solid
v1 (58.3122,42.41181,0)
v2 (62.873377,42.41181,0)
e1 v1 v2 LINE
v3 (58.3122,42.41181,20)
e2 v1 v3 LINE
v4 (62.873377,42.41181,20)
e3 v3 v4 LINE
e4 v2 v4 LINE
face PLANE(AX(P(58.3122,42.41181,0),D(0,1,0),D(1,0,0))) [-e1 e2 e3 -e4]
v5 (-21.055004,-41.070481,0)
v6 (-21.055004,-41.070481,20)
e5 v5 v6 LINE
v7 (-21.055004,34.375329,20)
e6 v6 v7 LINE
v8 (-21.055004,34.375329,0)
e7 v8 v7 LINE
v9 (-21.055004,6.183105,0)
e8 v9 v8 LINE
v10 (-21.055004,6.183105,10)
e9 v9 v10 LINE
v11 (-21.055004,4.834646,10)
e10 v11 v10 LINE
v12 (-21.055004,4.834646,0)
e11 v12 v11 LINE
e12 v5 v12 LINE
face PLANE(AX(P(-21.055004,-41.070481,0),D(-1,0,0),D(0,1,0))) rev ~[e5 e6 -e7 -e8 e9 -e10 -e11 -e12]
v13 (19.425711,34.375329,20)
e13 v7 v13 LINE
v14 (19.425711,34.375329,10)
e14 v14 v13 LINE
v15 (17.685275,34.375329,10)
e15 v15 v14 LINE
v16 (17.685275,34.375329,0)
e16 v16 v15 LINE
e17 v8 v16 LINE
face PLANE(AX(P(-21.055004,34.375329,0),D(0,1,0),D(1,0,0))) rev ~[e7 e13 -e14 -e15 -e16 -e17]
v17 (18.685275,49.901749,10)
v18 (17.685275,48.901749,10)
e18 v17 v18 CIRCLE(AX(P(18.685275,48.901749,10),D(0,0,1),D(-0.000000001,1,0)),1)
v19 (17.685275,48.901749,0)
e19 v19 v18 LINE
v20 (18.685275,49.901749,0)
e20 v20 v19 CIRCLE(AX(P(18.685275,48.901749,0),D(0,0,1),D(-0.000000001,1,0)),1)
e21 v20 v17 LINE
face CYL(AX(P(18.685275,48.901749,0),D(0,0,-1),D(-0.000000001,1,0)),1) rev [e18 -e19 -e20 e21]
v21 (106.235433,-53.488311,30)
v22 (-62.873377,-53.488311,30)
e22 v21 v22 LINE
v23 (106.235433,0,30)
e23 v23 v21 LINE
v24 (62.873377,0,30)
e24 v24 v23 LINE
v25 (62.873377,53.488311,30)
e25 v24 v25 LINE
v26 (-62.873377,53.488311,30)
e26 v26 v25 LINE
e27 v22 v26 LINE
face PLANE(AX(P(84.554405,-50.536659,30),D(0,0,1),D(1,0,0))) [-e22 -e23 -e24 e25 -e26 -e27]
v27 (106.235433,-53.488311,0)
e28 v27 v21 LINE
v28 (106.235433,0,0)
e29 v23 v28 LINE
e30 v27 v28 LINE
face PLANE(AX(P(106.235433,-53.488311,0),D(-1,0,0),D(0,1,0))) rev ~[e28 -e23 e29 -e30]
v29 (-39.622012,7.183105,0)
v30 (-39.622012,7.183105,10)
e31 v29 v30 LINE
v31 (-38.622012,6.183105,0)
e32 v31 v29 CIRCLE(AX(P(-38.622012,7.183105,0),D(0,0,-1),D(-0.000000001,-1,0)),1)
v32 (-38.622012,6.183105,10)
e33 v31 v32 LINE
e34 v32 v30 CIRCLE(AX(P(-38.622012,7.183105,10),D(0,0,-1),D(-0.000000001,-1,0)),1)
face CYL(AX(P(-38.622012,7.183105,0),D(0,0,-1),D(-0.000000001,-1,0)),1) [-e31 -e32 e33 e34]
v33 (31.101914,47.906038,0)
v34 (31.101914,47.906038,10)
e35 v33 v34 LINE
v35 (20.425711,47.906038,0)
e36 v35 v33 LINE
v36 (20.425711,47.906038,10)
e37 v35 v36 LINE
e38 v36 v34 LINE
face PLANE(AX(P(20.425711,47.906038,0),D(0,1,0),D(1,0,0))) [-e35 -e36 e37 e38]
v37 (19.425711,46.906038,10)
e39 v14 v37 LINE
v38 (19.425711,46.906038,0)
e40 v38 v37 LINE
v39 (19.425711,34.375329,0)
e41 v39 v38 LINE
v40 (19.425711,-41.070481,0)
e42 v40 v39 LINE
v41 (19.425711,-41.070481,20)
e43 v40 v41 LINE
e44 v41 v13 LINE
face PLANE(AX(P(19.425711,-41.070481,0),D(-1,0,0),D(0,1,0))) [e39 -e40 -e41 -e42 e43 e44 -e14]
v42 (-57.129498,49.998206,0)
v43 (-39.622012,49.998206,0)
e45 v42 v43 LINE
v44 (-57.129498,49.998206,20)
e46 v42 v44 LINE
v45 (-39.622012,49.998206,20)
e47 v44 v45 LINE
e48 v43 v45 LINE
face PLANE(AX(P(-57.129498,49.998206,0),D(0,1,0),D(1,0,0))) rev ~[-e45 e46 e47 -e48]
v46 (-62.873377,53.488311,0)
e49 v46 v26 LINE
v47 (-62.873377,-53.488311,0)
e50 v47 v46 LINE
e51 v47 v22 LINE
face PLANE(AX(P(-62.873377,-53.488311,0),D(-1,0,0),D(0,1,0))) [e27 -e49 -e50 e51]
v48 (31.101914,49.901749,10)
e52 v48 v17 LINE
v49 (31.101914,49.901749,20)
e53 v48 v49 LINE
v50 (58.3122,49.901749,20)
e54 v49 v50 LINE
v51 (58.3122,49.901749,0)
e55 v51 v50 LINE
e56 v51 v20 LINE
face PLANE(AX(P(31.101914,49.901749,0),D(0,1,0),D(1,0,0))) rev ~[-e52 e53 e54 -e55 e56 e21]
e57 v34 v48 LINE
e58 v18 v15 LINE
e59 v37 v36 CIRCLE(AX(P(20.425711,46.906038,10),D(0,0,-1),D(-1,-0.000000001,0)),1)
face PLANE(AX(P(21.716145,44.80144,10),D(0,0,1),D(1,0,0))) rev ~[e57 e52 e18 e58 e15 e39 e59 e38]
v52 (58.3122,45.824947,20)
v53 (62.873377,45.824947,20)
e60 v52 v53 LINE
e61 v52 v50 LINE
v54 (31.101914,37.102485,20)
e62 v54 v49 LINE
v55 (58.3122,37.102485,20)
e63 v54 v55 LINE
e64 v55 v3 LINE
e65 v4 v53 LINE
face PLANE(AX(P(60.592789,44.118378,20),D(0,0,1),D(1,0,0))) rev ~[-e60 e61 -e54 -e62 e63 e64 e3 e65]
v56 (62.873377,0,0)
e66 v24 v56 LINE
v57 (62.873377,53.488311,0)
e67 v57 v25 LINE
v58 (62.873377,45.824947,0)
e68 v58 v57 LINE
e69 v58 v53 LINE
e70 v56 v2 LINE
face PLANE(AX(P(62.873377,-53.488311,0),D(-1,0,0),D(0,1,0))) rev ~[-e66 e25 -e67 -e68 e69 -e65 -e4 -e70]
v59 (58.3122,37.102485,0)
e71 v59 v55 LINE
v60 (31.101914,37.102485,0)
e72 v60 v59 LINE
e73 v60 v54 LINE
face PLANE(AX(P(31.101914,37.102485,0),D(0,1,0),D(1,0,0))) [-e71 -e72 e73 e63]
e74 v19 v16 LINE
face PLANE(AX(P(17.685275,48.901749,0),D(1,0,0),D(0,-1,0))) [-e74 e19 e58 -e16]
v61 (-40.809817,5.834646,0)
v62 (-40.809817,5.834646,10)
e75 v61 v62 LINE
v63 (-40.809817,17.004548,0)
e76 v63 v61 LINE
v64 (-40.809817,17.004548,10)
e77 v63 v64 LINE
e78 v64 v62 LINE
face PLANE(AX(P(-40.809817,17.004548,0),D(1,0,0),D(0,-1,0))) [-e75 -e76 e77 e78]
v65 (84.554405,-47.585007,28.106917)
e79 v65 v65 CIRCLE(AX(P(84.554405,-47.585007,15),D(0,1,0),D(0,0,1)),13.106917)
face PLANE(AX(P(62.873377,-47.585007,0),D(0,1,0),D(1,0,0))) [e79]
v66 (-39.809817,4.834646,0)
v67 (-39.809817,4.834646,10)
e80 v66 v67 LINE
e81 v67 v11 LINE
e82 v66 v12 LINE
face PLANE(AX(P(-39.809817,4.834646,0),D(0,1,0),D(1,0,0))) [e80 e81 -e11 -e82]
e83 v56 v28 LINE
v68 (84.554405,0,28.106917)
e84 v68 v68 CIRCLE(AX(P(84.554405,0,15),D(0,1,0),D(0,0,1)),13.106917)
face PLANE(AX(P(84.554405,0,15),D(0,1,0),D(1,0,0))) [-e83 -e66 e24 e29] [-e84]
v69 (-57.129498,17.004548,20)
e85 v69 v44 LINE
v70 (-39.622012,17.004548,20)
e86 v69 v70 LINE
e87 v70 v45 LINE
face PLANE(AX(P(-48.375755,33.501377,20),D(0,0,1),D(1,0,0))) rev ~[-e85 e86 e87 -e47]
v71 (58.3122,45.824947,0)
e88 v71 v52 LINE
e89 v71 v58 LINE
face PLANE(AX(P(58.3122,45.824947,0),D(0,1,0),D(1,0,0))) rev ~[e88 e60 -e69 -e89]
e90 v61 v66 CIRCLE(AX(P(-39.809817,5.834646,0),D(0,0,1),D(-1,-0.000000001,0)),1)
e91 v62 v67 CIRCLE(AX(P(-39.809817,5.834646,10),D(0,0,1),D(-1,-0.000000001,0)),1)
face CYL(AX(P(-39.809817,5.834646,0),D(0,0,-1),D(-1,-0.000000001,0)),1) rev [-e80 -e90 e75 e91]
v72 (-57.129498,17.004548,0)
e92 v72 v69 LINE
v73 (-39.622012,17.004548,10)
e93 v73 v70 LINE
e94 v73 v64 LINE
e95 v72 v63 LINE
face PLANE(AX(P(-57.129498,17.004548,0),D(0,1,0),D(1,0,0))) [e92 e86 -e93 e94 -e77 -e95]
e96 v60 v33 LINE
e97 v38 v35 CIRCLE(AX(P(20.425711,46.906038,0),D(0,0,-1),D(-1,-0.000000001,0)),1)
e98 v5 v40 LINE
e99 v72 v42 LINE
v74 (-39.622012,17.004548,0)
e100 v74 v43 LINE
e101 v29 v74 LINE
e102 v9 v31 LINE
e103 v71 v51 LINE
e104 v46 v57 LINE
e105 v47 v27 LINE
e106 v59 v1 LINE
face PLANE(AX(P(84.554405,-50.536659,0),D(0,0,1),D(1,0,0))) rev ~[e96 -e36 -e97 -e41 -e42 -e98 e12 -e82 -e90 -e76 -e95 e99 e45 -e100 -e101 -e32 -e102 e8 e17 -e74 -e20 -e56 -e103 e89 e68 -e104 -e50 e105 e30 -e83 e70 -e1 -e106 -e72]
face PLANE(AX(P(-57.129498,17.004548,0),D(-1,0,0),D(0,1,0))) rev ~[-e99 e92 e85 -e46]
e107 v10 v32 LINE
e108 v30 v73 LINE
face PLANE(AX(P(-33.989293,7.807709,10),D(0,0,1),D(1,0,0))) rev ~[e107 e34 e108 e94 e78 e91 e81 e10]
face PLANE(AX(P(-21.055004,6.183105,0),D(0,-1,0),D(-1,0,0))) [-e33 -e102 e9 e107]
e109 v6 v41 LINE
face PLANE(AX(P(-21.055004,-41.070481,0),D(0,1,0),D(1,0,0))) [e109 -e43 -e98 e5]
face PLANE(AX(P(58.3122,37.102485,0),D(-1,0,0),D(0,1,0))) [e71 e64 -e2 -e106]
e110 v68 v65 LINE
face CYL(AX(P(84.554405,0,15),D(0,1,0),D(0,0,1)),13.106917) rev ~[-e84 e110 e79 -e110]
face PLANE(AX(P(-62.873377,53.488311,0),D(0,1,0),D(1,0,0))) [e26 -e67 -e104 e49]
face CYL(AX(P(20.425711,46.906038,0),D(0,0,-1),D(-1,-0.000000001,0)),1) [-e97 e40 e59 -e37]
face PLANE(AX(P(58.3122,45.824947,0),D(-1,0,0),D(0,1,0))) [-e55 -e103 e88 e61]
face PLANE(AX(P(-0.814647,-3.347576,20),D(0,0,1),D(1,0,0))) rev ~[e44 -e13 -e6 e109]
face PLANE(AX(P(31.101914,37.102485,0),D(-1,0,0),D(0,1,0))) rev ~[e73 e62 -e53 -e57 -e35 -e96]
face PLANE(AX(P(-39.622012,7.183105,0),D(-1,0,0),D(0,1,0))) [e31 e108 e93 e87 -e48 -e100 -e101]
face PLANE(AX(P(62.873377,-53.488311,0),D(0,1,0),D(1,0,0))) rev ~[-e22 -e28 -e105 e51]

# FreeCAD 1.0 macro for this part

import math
import FreeCAD as App
import Part
import Sketcher

V = App.Vector
Q = App.Units.Quantity

doc = App.newDocument("Part")
body = doc.addObject("PartDesign::Body", "Body")

# Sketch on XY plane
sketch1 = doc.addObject("Sketcher::SketchObject", "Sketch")
body.addObject(sketch1)
sketch1.AttachmentSupport = (doc.XY_Plane, [""])
sketch1.MapMode = "FlatFace"
sketch1.addGeometry(Part.LineSegment(V(-63, 53, 0), V(-63, -53, 0)), False)
sketch1.addGeometry(Part.LineSegment(V(-63, -53, 0), V(63, -53, 0)), False)
sketch1.addGeometry(Part.LineSegment(V(63, -53, 0), V(63, 53, 0)), False)
sketch1.addGeometry(Part.LineSegment(V(63, 53, 0), V(-63, 53, 0)), False)
sketch1.addConstraint(Sketcher.Constraint("Coincident", 0, 2, 1, 1))
sketch1.addConstraint(Sketcher.Constraint("Coincident", 1, 2, 2, 1))
sketch1.addConstraint(Sketcher.Constraint("Coincident", 2, 2, 3, 1))
sketch1.addConstraint(Sketcher.Constraint("Coincident", 3, 2, 0, 1))
sketch1.addConstraint(Sketcher.Constraint("Vertical", 0))
sketch1.addConstraint(Sketcher.Constraint("Horizontal", 1))
sketch1.addConstraint(Sketcher.Constraint("Vertical", 2))
sketch1.addConstraint(Sketcher.Constraint("Horizontal", 3))
sketch1.addConstraint(Sketcher.Constraint("Symmetric", 0, 2, 2, 2, -1, 1))
sketch1.addConstraint(Sketcher.Constraint("DistanceX", 1, 1, 1, 2, Q("125.746754 mm")))
sketch1.addConstraint(Sketcher.Constraint("DistanceY", 0, 2, 0, 1, Q("106.976622 mm")))
pad1 = doc.addObject("PartDesign::Pad", "Pad")
body.addObject(pad1)
pad1.Profile = sketch1
pad1.Length = 30

# Sketch on XY plane
sketch2 = doc.addObject("Sketcher::SketchObject", "Sketch001")
body.addObject(sketch2)
sketch2.AttachmentSupport = (doc.XY_Plane, [""])
sketch2.MapMode = "FlatFace"
sketch2.addGeometry(Part.LineSegment(V(-21, 34, 0), V(-21, -41, 0)), False)
sketch2.addGeometry(Part.LineSegment(V(-21, -41, 0), V(19, -41, 0)), False)
sketch2.addGeometry(Part.LineSegment(V(19, -41, 0), V(19, 34, 0)), False)
sketch2.addGeometry(Part.LineSegment(V(19, 34, 0), V(-21, 34, 0)), False)
sketch2.addConstraint(Sketcher.Constraint("Coincident", 0, 2, 1, 1))
sketch2.addConstraint(Sketcher.Constraint("Coincident", 1, 2, 2, 1))
sketch2.addConstraint(Sketcher.Constraint("Coincident", 2, 2, 3, 1))
sketch2.addConstraint(Sketcher.Constraint("Coincident", 3, 2, 0, 1))
sketch2.addConstraint(Sketcher.Constraint("Vertical", 0))
sketch2.addConstraint(Sketcher.Constraint("Horizontal", 1))
sketch2.addConstraint(Sketcher.Constraint("Vertical", 2))
sketch2.addConstraint(Sketcher.Constraint("Horizontal", 3))
sketch2.addConstraint(Sketcher.Constraint("DistanceY", 0, 2, 0, 1, Q("75.44581 mm")))
sketch2.addConstraint(Sketcher.Constraint("DistanceX", 1, 1, 1, 2, Q("40.480715 mm")))
sketch2.addConstraint(Sketcher.Constraint("DistanceY", 0, 2, -1, 1, Q("41.070481 mm")))
sketch2.addConstraint(Sketcher.Constraint("DistanceX", -1, 1, 1, 2, Q("19.425711 mm")))
pocket1 = doc.addObject("PartDesign::Pocket", "Pocket")
body.addObject(pocket1)
pocket1.Profile = sketch2
pocket1.Length = 20
pocket1.Reversed = True

# Sketch on XY plane
sketch3 = doc.addObject("Sketcher::SketchObject", "Sketch002")
body.addObject(sketch3)
sketch3.AttachmentSupport = (doc.XY_Plane, [""])
sketch3.MapMode = "FlatFace"
sketch3.addGeometry(Part.LineSegment(V(58.3, 42.4, 0), V(62.9, 42.4, 0)), False)
sketch3.addGeometry(Part.LineSegment(V(62.9, 42.4, 0), V(62.9, 45.8, 0)), False)
sketch3.addGeometry(Part.LineSegment(V(62.9, 45.8, 0), V(58.3, 45.8, 0)), False)
sketch3.addGeometry(Part.LineSegment(V(58.3, 45.8, 0), V(58.3, 49.9, 0)), False)
sketch3.addGeometry(Part.LineSegment(V(58.3, 49.9, 0), V(31.1, 49.9, 0)), False)
sketch3.addGeometry(Part.LineSegment(V(31.1, 49.9, 0), V(31.1, 37.1, 0)), False)
sketch3.addGeometry(Part.LineSegment(V(31.1, 37.1, 0), V(58.3, 37.1, 0)), False)
sketch3.addGeometry(Part.LineSegment(V(58.3, 37.1, 0), V(58.3, 42.4, 0)), False)
sketch3.addGeometry(Part.LineSegment(V(-57.1, 50, 0), V(-57.1, 17, 0)), False)
sketch3.addGeometry(Part.LineSegment(V(-57.1, 17, 0), V(-39.6, 17, 0)), False)
sketch3.addGeometry(Part.LineSegment(V(-39.6, 17, 0), V(-39.6, 50, 0)), False)
sketch3.addGeometry(Part.LineSegment(V(-39.6, 50, 0), V(-57.1, 50, 0)), False)
sketch3.addConstraint(Sketcher.Constraint("Coincident", 0, 2, 1, 1))
sketch3.addConstraint(Sketcher.Constraint("Coincident", 1, 2, 2, 1))
sketch3.addConstraint(Sketcher.Constraint("Coincident", 2, 2, 3, 1))
sketch3.addConstraint(Sketcher.Constraint("Coincident", 3, 2, 4, 1))
sketch3.addConstraint(Sketcher.Constraint("Coincident", 4, 2, 5, 1))
sketch3.addConstraint(Sketcher.Constraint("Coincident", 5, 2, 6, 1))
sketch3.addConstraint(Sketcher.Constraint("Coincident", 6, 2, 7, 1))
sketch3.addConstraint(Sketcher.Constraint("Coincident", 7, 2, 0, 1))
sketch3.addConstraint(Sketcher.Constraint("Coincident", 8, 2, 9, 1))
sketch3.addConstraint(Sketcher.Constraint("Coincident", 9, 2, 10, 1))
sketch3.addConstraint(Sketcher.Constraint("Coincident", 10, 2, 11, 1))
sketch3.addConstraint(Sketcher.Constraint("Coincident", 11, 2, 8, 1))
sketch3.addConstraint(Sketcher.Constraint("Horizontal", 0))
sketch3.addConstraint(Sketcher.Constraint("Vertical", 1))
sketch3.addConstraint(Sketcher.Constraint("Horizontal", 2))
sketch3.addConstraint(Sketcher.Constraint("Vertical", 3))
sketch3.addConstraint(Sketcher.Constraint("Horizontal", 4))
sketch3.addConstraint(Sketcher.Constraint("Vertical", 5))
sketch3.addConstraint(Sketcher.Constraint("Horizontal", 6))
sketch3.addConstraint(Sketcher.Constraint("Vertical", 7))
sketch3.addConstraint(Sketcher.Constraint("Vertical", 8))
sketch3.addConstraint(Sketcher.Constraint("Horizontal", 9))
sketch3.addConstraint(Sketcher.Constraint("Vertical", 10))
sketch3.addConstraint(Sketcher.Constraint("Horizontal", 11))
sketch3.addConstraint(Sketcher.Constraint("Vertical", 3, 2, 6, 2))
sketch3.addConstraint(Sketcher.Constraint("DistanceX", -1, 1, 2, 2, Q("58.3122 mm")))
sketch3.addConstraint(Sketcher.Constraint("DistanceY", 8, 2, 4, 2, Q("32.897201 mm")))
sketch3.addConstraint(Sketcher.Constraint("DistanceX", 8, 2, 6, 2, Q("115.441698 mm")))
sketch3.addConstraint(Sketcher.Constraint("DistanceY", 8, 2, 2, 2, Q("28.820398 mm")))
sketch3.addConstraint(Sketcher.Constraint("DistanceX", 0, 1, 0, 2, Q("4.561176 mm")))
sketch3.addConstraint(Sketcher.Constraint("DistanceX", 4, 2, 4, 1, Q("27.210286 mm")))
sketch3.addConstraint(Sketcher.Constraint("DistanceX", 9, 1, 9, 2, Q("17.507485 mm")))
sketch3.addConstraint(Sketcher.Constraint("DistanceY", 1, 1, 1, 2, Q("3.413137 mm")))
sketch3.addConstraint(Sketcher.Constraint("DistanceY", 5, 2, 5, 1, Q("12.799264 mm")))
sketch3.addConstraint(Sketcher.Constraint("DistanceY", 8, 2, 8, 1, Q("32.993657 mm")))
sketch3.addConstraint(Sketcher.Constraint("DistanceY", -1, 1, 0, 2, Q("42.41181 mm")))
pocket2 = doc.addObject("PartDesign::Pocket", "Pocket001")
body.addObject(pocket2)
pocket2.Profile = sketch3
pocket2.Length = 20
pocket2.Reversed = True

# Sketch on XY plane
sketch4 = doc.addObject("Sketcher::SketchObject", "Sketch003")
body.addObject(sketch4)
sketch4.AttachmentSupport = (doc.XY_Plane, [""])
sketch4.MapMode = "FlatFace"
sketch4.addGeometry(Part.LineSegment(V(31.1, 49.9, 0), V(18.7, 49.9, 0)), False)
sketch4.addGeometry(Part.ArcOfCircle(Part.Circle(V(18.7, 48.9, 0), V(0, 0, 1), 1), math.radians(90), math.radians(180)), False)
sketch4.addGeometry(Part.LineSegment(V(17.7, 48.9, 0), V(17.7, 34.4, 0)), False)
sketch4.addGeometry(Part.LineSegment(V(17.7, 34.4, 0), V(19.4, 34.4, 0)), False)
sketch4.addGeometry(Part.LineSegment(V(19.4, 34.4, 0), V(19.4, 46.9, 0)), False)
sketch4.addGeometry(Part.ArcOfCircle(Part.Circle(V(20.4, 46.9, 0), V(0, 0, 1), 1), math.radians(90), math.radians(180)), False)
sketch4.addGeometry(Part.LineSegment(V(20.4, 47.9, 0), V(31.1, 47.9, 0)), False)
sketch4.addGeometry(Part.LineSegment(V(31.1, 47.9, 0), V(31.1, 49.9, 0)), False)
sketch4.addGeometry(Part.LineSegment(V(-39.6, 17, 0), V(-40.8, 17, 0)), False)
sketch4.addGeometry(Part.LineSegment(V(-40.8, 17, 0), V(-40.8, 5.8, 0)), False)
sketch4.addGeometry(Part.ArcOfCircle(Part.Circle(V(-39.8, 5.8, 0), V(0, 0, 1), 1), math.radians(-180), math.radians(-90)), False)
sketch4.addGeometry(Part.LineSegment(V(-39.8, 4.8, 0), V(-21.1, 4.8, 0)), False)
sketch4.addGeometry(Part.LineSegment(V(-21.1, 4.8, 0), V(-21.1, 6.2, 0)), False)
sketch4.addGeometry(Part.LineSegment(V(-21.1, 6.2, 0), V(-38.6, 6.2, 0)), False)
sketch4.addGeometry(Part.ArcOfCircle(Part.Circle(V(-38.6, 7.2, 0), V(0, 0, 1), 1), math.radians(-180), math.radians(-90)), False)
sketch4.addGeometry(Part.LineSegment(V(-39.6, 7.2, 0), V(-39.6, 17, 0)), False)
sketch4.addConstraint(Sketcher.Constraint("Tangent", 0, 2, 1, 1))
sketch4.addConstraint(Sketcher.Constraint("Tangent", 1, 2, 2, 1))
sketch4.addConstraint(Sketcher.Constraint("Coincident", 2, 2, 3, 1))
sketch4.addConstraint(Sketcher.Constraint("Coincident", 3, 2, 4, 1))
sketch4.addConstraint(Sketcher.Constraint("Tangent", 4, 2, 5, 2))
sketch4.addConstraint(Sketcher.Constraint("Tangent", 5, 1, 6, 1))
sketch4.addConstraint(Sketcher.Constraint("Coincident", 6, 2, 7, 1))
sketch4.addConstraint(Sketcher.Constraint("Coincident", 7, 2, 0, 1))
sketch4.addConstraint(Sketcher.Constraint("Coincident", 8, 2, 9, 1))
sketch4.addConstraint(Sketcher.Constraint("Tangent", 9, 2, 10, 1))
sketch4.addConstraint(Sketcher.Constraint("Tangent", 10, 2, 11, 1))
sketch4.addConstraint(Sketcher.Constraint("Coincident", 11, 2, 12, 1))
sketch4.addConstraint(Sketcher.Constraint("Coincident", 12, 2, 13, 1))
sketch4.addConstraint(Sketcher.Constraint("Tangent", 13, 2, 14, 2))
sketch4.addConstraint(Sketcher.Constraint("Tangent", 14, 1, 15, 1))
sketch4.addConstraint(Sketcher.Constraint("Coincident", 15, 2, 8, 1))
sketch4.addConstraint(Sketcher.Constraint("Horizontal", 0))
sketch4.addConstraint(Sketcher.Constraint("Vertical", 2))
sketch4.addConstraint(Sketcher.Constraint("Horizontal", 3))
sketch4.addConstraint(Sketcher.Constraint("Vertical", 4))
sketch4.addConstraint(Sketcher.Constraint("Horizontal", 6))
sketch4.addConstraint(Sketcher.Constraint("Vertical", 7))
sketch4.addConstraint(Sketcher.Constraint("Horizontal", 8))
sketch4.addConstraint(Sketcher.Constraint("Vertical", 9))
sketch4.addConstraint(Sketcher.Constraint("Horizontal", 11))
sketch4.addConstraint(Sketcher.Constraint("Vertical", 12))
sketch4.addConstraint(Sketcher.Constraint("Horizontal", 13))
sketch4.addConstraint(Sketcher.Constraint("Vertical", 15))
sketch4.addConstraint(Sketcher.Constraint("Equal", 1, 5))
sketch4.addConstraint(Sketcher.Constraint("Equal", 5, 10))
sketch4.addConstraint(Sketcher.Constraint("Equal", 10, 14))
sketch4.addConstraint(Sketcher.Constraint("Radius", 1, Q("1 mm")))
sketch4.addConstraint(Sketcher.Constraint("DistanceX", 0, 2, 0, 1, Q("12.416639 mm")))
sketch4.addConstraint(Sketcher.Constraint("DistanceY", 2, 2, 2, 1, Q("14.52642 mm")))
sketch4.addConstraint(Sketcher.Constraint("DistanceY", 4, 1, 4, 2, Q("12.530709 mm")))
sketch4.addConstraint(Sketcher.Constraint("DistanceY", 12, 1, 12, 2, Q("1.348459 mm")))
sketch4.addConstraint(Sketcher.Constraint("DistanceY", 8, 2, 1, 2, Q("31.897201 mm")))
sketch4.addConstraint(Sketcher.Constraint("DistanceX", 3, 1, 3, 2, Q("1.740436 mm")))
sketch4.addConstraint(Sketcher.Constraint("DistanceX", 8, 2, 8, 1, Q("1.187804 mm")))
sketch4.addConstraint(Sketcher.Constraint("DistanceX", 11, 1, 11, 2, Q("18.754812 mm")))
sketch4.addConstraint(Sketcher.Constraint("DistanceY", 9, 2, 9, 1, Q("11.169902 mm")))
sketch4.addConstraint(Sketcher.Constraint("DistanceY", -1, 1, 1, 3, Q("48.901749 mm")))
sketch4.addConstraint(Sketcher.Constraint("DistanceX", -1, 1, 5, 3, Q("20.425711 mm")))
sketch4.addConstraint(Sketcher.Constraint("DistanceX", 10, 3, 1, 3, Q("58.495092 mm")))
pocket3 = doc.addObject("PartDesign::Pocket", "Pocket002")
body.addObject(pocket3)
pocket3.Profile = sketch4
pocket3.Length = 10
pocket3.Reversed = True

# Sketch on XY plane
sketch5 = doc.addObject("Sketcher::SketchObject", "Sketch004")
body.addObject(sketch5)
sketch5.AttachmentSupport = (doc.XY_Plane, [""])
sketch5.MapMode = "FlatFace"
sketch5.addGeometry(Part.LineSegment(V(63, -48, 0), V(63, -53, 0)), False)
sketch5.addGeometry(Part.LineSegment(V(63, -53, 0), V(106, -53, 0)), False)
sketch5.addGeometry(Part.LineSegment(V(106, -53, 0), V(106, -48, 0)), False)
sketch5.addGeometry(Part.LineSegment(V(106, -48, 0), V(63, -48, 0)), False)
sketch5.addConstraint(Sketcher.Constraint("Coincident", 0, 2, 1, 1))
sketch5.addConstraint(Sketcher.Constraint("Coincident", 1, 2, 2, 1))
sketch5.addConstraint(Sketcher.Constraint("Coincident", 2, 2, 3, 1))
sketch5.addConstraint(Sketcher.Constraint("Coincident", 3, 2, 0, 1))
sketch5.addConstraint(Sketcher.Constraint("Vertical", 0))
sketch5.addConstraint(Sketcher.Constraint("Horizontal", 1))
sketch5.addConstraint(Sketcher.Constraint("Vertical", 2))
sketch5.addConstraint(Sketcher.Constraint("Horizontal", 3))
sketch5.addConstraint(Sketcher.Constraint("DistanceX", 1, 1, 1, 2, Q("43.362056 mm")))
sketch5.addConstraint(Sketcher.Constraint("DistanceY", 0, 2, 0, 1, Q("5.903304 mm")))
sketch5.addConstraint(Sketcher.Constraint("DistanceY", 0, 2, -1, 1, Q("53.488311 mm")))
sketch5.addConstraint(Sketcher.Constraint("DistanceX", -1, 1, 0, 2, Q("62.873377 mm")))
pad2 = doc.addObject("PartDesign::Pad", "Pad001")
body.addObject(pad2)
pad2.Profile = sketch5
pad2.Length = 30

# Sketch on XZ plane
sketch6 = doc.addObject("Sketcher::SketchObject", "Sketch005")
body.addObject(sketch6)
sketch6.AttachmentSupport = (doc.XZ_Plane, [""])
sketch6.MapMode = "FlatFace"
sketch6.addGeometry(Part.LineSegment(V(63, 0, 0), V(63, 30, 0)), False)
sketch6.addGeometry(Part.LineSegment(V(63, 30, 0), V(106, 30, 0)), False)
sketch6.addGeometry(Part.LineSegment(V(106, 30, 0), V(106, 0, 0)), False)
sketch6.addGeometry(Part.LineSegment(V(106, 0, 0), V(63, 0, 0)), False)
sketch6.addGeometry(Part.Circle(V(85, 15, 0), V(0, 0, 1), 13), False)
sketch6.addConstraint(Sketcher.Constraint("Coincident", 0, 2, 1, 1))
sketch6.addConstraint(Sketcher.Constraint("Coincident", 1, 2, 2, 1))
sketch6.addConstraint(Sketcher.Constraint("Coincident", 2, 2, 3, 1))
sketch6.addConstraint(Sketcher.Constraint("Coincident", 3, 2, 0, 1))
sketch6.addConstraint(Sketcher.Constraint("Vertical", 0))
sketch6.addConstraint(Sketcher.Constraint("Horizontal", 1))
sketch6.addConstraint(Sketcher.Constraint("Vertical", 2))
sketch6.addConstraint(Sketcher.Constraint("Horizontal", 3))
sketch6.addConstraint(Sketcher.Constraint("PointOnObject", 2, 2, -1))
sketch6.addConstraint(Sketcher.Constraint("DistanceY", 0, 1, 0, 2, Q("30 mm")))
sketch6.addConstraint(Sketcher.Constraint("DistanceY", -1, 1, 4, 3, Q("15 mm")))
sketch6.addConstraint(Sketcher.Constraint("Diameter", 4, Q("26.213835 mm")))
sketch6.addConstraint(Sketcher.Constraint("DistanceX", 1, 1, 1, 2, Q("43.362056 mm")))
sketch6.addConstraint(Sketcher.Constraint("DistanceX", -1, 1, 4, 3, Q("84.554405 mm")))
sketch6.addConstraint(Sketcher.Constraint("DistanceX", -1, 1, 0, 2, Q("62.873377 mm")))
pad3 = doc.addObject("PartDesign::Pad", "Pad002")
body.addObject(pad3)
pad3.Profile = sketch6
pad3.Length = 50

doc.recompute()
